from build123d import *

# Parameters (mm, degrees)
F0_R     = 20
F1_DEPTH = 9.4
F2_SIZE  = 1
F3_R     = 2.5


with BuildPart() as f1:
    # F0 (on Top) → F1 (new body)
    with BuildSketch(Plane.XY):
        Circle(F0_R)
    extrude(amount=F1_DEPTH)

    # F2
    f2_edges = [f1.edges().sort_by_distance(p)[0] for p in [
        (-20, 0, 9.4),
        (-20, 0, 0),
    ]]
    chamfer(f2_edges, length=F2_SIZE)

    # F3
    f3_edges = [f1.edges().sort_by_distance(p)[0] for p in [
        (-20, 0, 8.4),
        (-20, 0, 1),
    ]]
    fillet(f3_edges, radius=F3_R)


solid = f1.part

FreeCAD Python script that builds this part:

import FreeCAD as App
import Part
import Sketcher


def edges_at(feature, points):
    """Names of the edges that pass closest to the given points."""
    edges = feature.Shape.Edges
    near = lambda p: min(range(len(edges)), key=lambda i: edges[i].distToShape(Part.Vertex(*p))[0])
    return sorted({f"Edge{near(p) + 1}" for p in points})

doc = App.newDocument("Part")
body = doc.addObject("PartDesign::Body", "Body")

# Sketch on XY plane
sketch1 = body.newObject("Sketcher::SketchObject", "Sketch")
sketch1.AttachmentSupport = (doc.getObject("XY_Plane"), [""])
sketch1.MapMode = "FlatFace"
sketch1.addGeometry(Part.Circle(App.Vector(0, 0, 0), App.Vector(0, 0, 1), 20), False)
sketch1.addConstraint(Sketcher.Constraint("Coincident", 0, 3, -1, 1))
sketch1.addConstraint(Sketcher.Constraint("Diameter", 0, 40.0))
pad1 = body.newObject("PartDesign::Pad", "Pad")
pad1.Profile = sketch1
pad1.Length = 9.4
doc.recompute()

chamfer = body.newObject("PartDesign::Chamfer", "Chamfer")
chamfer.Base = (pad1, edges_at(pad1, [(-20, 0, 9.4), (-20, 0, 0)]))
chamfer.Size = 1
doc.recompute()

fillet = body.newObject("PartDesign::Fillet", "Fillet")
fillet.Base = (chamfer, edges_at(chamfer, [(-20, 0, 8.4), (-20, 0, 1)]))
fillet.Radius = 2.5

doc.recompute()
